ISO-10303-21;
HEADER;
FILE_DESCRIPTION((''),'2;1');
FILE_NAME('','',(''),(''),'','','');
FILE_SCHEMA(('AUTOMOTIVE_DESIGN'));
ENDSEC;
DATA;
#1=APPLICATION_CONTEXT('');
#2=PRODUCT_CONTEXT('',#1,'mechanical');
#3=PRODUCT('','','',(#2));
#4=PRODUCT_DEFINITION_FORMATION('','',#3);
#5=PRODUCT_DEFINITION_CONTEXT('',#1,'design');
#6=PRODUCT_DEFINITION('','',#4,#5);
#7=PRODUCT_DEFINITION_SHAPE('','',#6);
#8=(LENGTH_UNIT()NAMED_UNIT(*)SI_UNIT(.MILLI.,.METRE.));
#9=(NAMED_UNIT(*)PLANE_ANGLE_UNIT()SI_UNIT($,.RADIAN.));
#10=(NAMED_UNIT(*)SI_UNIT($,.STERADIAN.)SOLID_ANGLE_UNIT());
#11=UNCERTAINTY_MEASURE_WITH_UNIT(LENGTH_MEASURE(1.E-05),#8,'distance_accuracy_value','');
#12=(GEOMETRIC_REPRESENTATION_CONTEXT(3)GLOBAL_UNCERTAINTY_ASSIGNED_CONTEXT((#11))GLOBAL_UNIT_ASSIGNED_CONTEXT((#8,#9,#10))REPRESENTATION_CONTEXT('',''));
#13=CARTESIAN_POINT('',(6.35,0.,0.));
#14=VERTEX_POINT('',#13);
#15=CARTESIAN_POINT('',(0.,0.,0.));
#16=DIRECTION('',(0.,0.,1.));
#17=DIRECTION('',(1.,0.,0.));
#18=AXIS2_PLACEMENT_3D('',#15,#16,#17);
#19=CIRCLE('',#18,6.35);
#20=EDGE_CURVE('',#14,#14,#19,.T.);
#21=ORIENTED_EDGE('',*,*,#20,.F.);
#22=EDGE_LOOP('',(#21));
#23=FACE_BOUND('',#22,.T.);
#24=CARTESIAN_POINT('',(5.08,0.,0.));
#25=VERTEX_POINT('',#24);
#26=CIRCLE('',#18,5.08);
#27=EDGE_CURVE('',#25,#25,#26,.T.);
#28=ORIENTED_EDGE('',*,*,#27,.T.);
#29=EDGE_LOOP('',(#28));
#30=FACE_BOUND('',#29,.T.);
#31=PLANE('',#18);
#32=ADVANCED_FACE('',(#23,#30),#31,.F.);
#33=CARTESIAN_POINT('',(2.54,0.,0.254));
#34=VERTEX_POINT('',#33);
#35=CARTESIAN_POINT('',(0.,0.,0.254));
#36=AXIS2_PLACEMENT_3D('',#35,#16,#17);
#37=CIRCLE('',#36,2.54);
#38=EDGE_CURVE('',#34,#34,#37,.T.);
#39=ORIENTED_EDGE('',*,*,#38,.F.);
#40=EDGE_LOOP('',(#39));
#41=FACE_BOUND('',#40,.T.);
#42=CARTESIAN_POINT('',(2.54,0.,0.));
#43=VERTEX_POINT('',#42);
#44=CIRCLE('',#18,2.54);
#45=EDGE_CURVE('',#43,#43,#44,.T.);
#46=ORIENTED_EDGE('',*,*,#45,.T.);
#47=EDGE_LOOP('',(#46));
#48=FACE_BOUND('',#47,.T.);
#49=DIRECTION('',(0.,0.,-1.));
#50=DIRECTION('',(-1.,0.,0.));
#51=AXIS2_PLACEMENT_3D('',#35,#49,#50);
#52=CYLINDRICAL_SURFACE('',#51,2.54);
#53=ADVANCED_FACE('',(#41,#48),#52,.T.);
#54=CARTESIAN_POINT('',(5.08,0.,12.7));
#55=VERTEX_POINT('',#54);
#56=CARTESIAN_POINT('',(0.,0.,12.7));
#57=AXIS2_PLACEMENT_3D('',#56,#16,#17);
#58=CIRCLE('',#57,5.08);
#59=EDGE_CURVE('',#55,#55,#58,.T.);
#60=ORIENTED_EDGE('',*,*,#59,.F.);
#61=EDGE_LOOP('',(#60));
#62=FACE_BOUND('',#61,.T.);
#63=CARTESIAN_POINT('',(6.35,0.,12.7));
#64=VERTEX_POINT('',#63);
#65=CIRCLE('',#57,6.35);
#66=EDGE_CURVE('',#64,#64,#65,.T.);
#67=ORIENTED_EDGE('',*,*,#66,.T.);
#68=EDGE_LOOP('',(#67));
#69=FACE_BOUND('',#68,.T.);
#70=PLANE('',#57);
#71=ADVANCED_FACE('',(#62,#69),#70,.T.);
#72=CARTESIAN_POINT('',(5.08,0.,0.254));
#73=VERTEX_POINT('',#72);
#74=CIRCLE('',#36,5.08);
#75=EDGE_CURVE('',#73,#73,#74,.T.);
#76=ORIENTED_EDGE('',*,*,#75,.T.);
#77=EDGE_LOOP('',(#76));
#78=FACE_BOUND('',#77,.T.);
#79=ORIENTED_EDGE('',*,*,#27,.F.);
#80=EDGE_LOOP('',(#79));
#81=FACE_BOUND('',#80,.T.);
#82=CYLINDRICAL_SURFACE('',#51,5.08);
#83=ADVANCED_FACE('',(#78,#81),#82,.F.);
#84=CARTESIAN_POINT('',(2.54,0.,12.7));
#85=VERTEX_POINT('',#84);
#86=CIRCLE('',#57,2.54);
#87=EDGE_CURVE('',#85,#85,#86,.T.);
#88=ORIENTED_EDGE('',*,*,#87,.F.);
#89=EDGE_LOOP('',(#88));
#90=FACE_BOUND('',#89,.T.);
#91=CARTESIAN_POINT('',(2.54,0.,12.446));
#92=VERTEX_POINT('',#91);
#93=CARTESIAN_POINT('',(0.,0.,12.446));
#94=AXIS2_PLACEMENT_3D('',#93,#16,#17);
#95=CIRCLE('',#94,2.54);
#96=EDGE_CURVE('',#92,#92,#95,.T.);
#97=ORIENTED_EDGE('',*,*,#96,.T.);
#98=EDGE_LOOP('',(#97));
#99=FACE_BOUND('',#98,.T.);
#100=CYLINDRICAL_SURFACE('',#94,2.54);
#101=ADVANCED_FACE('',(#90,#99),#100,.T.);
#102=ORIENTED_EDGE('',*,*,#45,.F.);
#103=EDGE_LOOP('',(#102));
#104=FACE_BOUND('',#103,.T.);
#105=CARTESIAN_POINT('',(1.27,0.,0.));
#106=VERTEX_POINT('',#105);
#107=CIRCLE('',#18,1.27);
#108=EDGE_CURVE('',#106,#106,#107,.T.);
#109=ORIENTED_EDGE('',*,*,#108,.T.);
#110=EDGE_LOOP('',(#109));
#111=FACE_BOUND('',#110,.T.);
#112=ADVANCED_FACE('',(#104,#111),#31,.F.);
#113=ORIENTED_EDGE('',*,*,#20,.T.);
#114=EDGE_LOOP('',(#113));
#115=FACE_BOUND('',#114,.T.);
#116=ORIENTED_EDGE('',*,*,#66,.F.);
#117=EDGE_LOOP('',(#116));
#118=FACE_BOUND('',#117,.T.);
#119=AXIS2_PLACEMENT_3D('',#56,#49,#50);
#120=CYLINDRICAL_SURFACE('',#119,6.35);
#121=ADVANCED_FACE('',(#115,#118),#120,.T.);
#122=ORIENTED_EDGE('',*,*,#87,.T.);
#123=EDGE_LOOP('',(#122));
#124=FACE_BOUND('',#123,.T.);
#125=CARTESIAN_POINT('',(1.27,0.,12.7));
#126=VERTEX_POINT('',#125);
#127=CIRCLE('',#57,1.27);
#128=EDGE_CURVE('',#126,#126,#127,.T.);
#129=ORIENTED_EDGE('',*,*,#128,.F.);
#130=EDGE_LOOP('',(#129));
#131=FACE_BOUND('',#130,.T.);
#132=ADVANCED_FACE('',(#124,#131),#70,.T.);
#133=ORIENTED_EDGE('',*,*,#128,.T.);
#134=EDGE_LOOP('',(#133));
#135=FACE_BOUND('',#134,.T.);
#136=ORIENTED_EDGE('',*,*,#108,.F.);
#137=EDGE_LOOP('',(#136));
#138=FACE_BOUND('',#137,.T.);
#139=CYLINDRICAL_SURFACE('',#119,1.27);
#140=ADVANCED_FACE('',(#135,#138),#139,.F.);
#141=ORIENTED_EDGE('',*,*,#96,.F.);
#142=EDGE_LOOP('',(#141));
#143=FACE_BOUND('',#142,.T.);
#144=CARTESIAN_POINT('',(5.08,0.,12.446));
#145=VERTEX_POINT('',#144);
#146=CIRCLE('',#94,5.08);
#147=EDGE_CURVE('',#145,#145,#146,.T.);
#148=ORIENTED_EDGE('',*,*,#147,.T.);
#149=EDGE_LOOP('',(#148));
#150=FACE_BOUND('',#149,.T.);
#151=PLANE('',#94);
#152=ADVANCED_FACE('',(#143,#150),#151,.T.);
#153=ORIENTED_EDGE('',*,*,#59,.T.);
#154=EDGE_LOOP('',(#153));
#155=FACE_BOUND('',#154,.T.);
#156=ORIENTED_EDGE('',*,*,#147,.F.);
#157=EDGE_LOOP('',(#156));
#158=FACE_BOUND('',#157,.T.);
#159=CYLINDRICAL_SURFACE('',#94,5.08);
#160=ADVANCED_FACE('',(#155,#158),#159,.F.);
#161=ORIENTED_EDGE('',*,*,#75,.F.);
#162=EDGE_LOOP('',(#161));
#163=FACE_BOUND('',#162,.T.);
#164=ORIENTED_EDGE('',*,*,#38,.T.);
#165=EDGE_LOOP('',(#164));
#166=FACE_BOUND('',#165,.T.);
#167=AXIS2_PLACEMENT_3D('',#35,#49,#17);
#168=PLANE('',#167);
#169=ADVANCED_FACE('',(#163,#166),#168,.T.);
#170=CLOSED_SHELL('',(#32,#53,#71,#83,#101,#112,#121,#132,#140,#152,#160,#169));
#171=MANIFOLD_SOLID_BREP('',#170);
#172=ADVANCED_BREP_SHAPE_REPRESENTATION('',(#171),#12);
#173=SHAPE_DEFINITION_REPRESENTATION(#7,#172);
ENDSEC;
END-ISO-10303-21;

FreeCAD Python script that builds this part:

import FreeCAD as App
import Part
import Sketcher

V = App.Vector
Q = App.Units.Quantity

doc = App.newDocument("Part")
body = doc.addObject("PartDesign::Body", "Body")

# Sketch on XY plane
sketch1 = body.newObject("Sketcher::SketchObject", "Sketch")
sketch1.AttachmentSupport = (doc.getObject("XY_Plane"), [""])
sketch1.MapMode = "FlatFace"
sketch1.addGeometry(Part.Circle(V(0, 0, 0), V(0, 0, 1), 6.35), False)
sketch1.addGeometry(Part.Circle(V(0, 0, 0), V(0, 0, 1), 1.27), False)
sketch1.addConstraint(Sketcher.Constraint("Coincident", 0, 3, -1, 1))
sketch1.addConstraint(Sketcher.Constraint("Coincident", 1, 3, -1, 1))
sketch1.addConstraint(Sketcher.Constraint("Diameter", 0, Q("0.5 in")))
sketch1.addConstraint(Sketcher.Constraint("Diameter", 1, Q("0.1 in")))
pad1 = body.newObject("PartDesign::Pad", "Pad")
pad1.Profile = sketch1
pad1.Length = Q("0.5 in")

# Sketch on XY plane
sketch2 = body.newObject("Sketcher::SketchObject", "Sketch001")
sketch2.AttachmentSupport = (doc.getObject("XY_Plane"), [""])
sketch2.MapMode = "FlatFace"
sketch2.AttachmentOffset = App.Placement(V(0, 0, 0.5 * 25.4), App.Rotation())
sketch2.addGeometry(Part.Circle(V(0, 0, 0), V(0, 0, 1), 5.08), False)
sketch2.addGeometry(Part.Circle(V(0, 0, 0), V(0, 0, 1), 2.54), False)
sketch2.addConstraint(Sketcher.Constraint("Coincident", 0, 3, -1, 1))
sketch2.addConstraint(Sketcher.Constraint("Coincident", 1, 3, -1, 1))
sketch2.addConstraint(Sketcher.Constraint("Diameter", 0, Q("0.4 in")))
sketch2.addConstraint(Sketcher.Constraint("Diameter", 1, Q("0.2 in")))
pocket1 = body.newObject("PartDesign::Pocket", "Pocket")
pocket1.Profile = sketch2
pocket1.Length = Q("0.01 in")
doc.recompute()

datumplane = body.newObject("PartDesign::Plane", "DatumPlane")
datumplane.AttachmentSupport = (doc.getObject("XY_Plane"), [""])
datumplane.MapMode = "FlatFace"
datumplane.AttachmentOffset = App.Placement(V(0, 0, 0.25 * 25.4), App.Rotation())
mirrored = body.newObject("PartDesign::Mirrored", "Mirrored")
mirrored.Originals = [pocket1]
mirrored.MirrorPlane = (datumplane, [""])
body.Tip = mirrored

doc.recompute()
